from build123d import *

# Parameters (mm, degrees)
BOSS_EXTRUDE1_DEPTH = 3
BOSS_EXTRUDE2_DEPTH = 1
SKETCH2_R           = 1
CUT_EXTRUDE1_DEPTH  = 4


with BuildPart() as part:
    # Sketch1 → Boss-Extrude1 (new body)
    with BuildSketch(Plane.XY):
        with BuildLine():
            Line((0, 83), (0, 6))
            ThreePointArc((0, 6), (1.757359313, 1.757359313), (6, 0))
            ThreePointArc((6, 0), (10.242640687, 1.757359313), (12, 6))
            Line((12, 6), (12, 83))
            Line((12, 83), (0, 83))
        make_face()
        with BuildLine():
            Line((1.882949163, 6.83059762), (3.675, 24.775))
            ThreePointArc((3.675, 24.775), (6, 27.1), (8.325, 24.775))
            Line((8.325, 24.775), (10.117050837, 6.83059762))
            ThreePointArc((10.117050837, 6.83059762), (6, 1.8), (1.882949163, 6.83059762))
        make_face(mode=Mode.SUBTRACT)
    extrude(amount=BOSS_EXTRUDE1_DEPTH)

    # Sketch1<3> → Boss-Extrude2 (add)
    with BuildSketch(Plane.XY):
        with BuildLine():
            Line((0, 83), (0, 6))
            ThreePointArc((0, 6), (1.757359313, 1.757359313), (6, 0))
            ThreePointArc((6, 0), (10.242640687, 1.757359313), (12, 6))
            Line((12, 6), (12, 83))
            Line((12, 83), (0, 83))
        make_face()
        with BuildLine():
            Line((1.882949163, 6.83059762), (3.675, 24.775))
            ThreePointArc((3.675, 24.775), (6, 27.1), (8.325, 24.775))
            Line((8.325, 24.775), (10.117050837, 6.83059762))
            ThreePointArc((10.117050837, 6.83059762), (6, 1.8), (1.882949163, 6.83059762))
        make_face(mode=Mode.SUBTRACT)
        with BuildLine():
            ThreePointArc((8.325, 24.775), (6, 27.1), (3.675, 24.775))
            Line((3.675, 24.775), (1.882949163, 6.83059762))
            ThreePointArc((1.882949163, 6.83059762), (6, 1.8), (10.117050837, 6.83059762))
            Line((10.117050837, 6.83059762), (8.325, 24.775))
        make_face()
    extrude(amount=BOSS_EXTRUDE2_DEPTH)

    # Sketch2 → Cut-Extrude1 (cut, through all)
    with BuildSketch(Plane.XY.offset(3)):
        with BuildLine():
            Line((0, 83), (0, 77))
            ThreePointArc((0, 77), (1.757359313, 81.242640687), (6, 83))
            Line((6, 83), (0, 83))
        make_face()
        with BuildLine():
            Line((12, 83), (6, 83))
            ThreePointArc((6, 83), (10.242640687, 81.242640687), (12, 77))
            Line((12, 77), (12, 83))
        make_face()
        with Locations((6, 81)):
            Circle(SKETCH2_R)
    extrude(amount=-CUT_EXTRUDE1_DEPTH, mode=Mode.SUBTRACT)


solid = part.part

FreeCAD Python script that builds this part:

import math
import FreeCAD as App
import Part
import Sketcher

doc = App.newDocument("Part")
params = doc.addObject("Spreadsheet::Sheet", "Params")
for row, (alias, value) in enumerate([
    ("sketch1_radius", "6 mm"),
    ("sketch1_radius2", "4.2 mm"),
    ("sketch1_height", "77 mm"),
    ("pad1_length", "3 mm"),
    ("sketch2_radius", "6 mm"),
    ("sketch2_height", "77 mm"),
    ("pad2_length", "1 mm"),
    ("sketch3_diameter", "2 mm"),
    ("sketch3_radius", "6 mm"),
], start=1):
    params.set(f"A{row}", alias)
    params.set(f"B{row}", "=" + value)
    params.setAlias(f"B{row}", alias)

body = doc.addObject("PartDesign::Body", "Body")

# Sketch on XY plane
sketch1 = body.newObject("Sketcher::SketchObject", "Sketch")
sketch1.AttachmentSupport = (doc.getObject("XY_Plane"), [""])
sketch1.MapMode = "FlatFace"
sketch1.addGeometry([
    Part.LineSegment(App.Vector(0, 83, 0), App.Vector(0, 6, 0)),  # 0
    Part.ArcOfCircle(Part.Circle(App.Vector(6, 6, 0), App.Vector(0, 0, 1), 6), math.radians(180), math.radians(270)),  # 1
    Part.ArcOfCircle(Part.Circle(App.Vector(6, 6, 0), App.Vector(0, 0, 1), 6), math.radians(-90), math.radians(0)),  # 2
    Part.LineSegment(App.Vector(12, 6, 0), App.Vector(12, 83, 0)),  # 3
    Part.LineSegment(App.Vector(12, 83, 0), App.Vector(0, 83, 0)),  # 4
    Part.ArcOfCircle(Part.Circle(App.Vector(6, 6, 0), App.Vector(0, 0, 1), 4.2), math.radians(169), math.radians(371)),  # 5
    Part.LineSegment(App.Vector(1.9, 6.8, 0), App.Vector(3.7, 24.8, 0)),  # 6
    Part.ArcOfCircle(Part.Circle(App.Vector(6, 24.8, 0), App.Vector(0, 0, 1), 2.3), math.radians(0), math.radians(180)),  # 7
    Part.LineSegment(App.Vector(8.3, 24.8, 0), App.Vector(10.1, 6.8, 0)),  # 8
], False)
sketch1.addConstraint([
    Sketcher.Constraint("Tangent", 0, 2, 1, 1),
    Sketcher.Constraint("Tangent", 1, 2, 2, 1),
    Sketcher.Constraint("Tangent", 2, 2, 3, 1),
    Sketcher.Constraint("Coincident", 3, 2, 4, 1),
    Sketcher.Constraint("Coincident", 4, 2, 0, 1),
    Sketcher.Constraint("Coincident", 5, 1, 6, 1),
    Sketcher.Constraint("Coincident", 6, 2, 7, 2),
    Sketcher.Constraint("Coincident", 7, 1, 8, 1),
    Sketcher.Constraint("Coincident", 8, 2, 5, 2),
    Sketcher.Constraint("Vertical", 0),
    Sketcher.Constraint("Vertical", 3),
    Sketcher.Constraint("Horizontal", 4),
    Sketcher.Constraint("Coincident", 5, 3, 1, 3),
    Sketcher.Constraint("Equal", 1, 2),
    Sketcher.Constraint("PointOnObject", 0, 2, -2),
    Sketcher.Constraint("PointOnObject", 1, 2, -1),
    Sketcher.Constraint("Horizontal", 7, 3, 6, 2),
    Sketcher.Constraint("Horizontal", 6, 2, 7, 1),
    Sketcher.Constraint("Horizontal", 5, 1, 8, 2),
    Sketcher.Constraint("Vertical", 5, 3, 7, 3),
    Sketcher.Constraint("Vertical", 7, 3, 1, 2),
    Sketcher.Constraint("Radius", 1, 6.0),
    Sketcher.Constraint("Radius", 5, 4.2),
    Sketcher.Constraint("DistanceY", 0, 2, 0, 1, 77.0),
    Sketcher.Constraint("Radius", 7, 2.325),
    Sketcher.Constraint("DistanceY", -1, 1, 7, 3, 24.775),
    Sketcher.Constraint("DistanceX", -1, 1, 5, 1, 1.882949),
])
sketch1.setExpression("Constraints[21]", "Params.sketch1_radius")
sketch1.setExpression("Constraints[22]", "Params.sketch1_radius2")
sketch1.setExpression("Constraints[23]", "Params.sketch1_height")
pad1 = body.newObject("PartDesign::Pad", "Pad")
pad1.Profile = sketch1
pad1.setExpression("Length", "Params.pad1_length")

# Sketch on XY plane
sketch2 = body.newObject("Sketcher::SketchObject", "Sketch001")
sketch2.AttachmentSupport = (doc.getObject("XY_Plane"), [""])
sketch2.MapMode = "FlatFace"
sketch2.addGeometry([
    Part.LineSegment(App.Vector(0, 83, 0), App.Vector(0, 6, 0)),  # 0
    Part.ArcOfCircle(Part.Circle(App.Vector(6, 6, 0), App.Vector(0, 0, 1), 6), math.radians(180), math.radians(270)),  # 1
    Part.ArcOfCircle(Part.Circle(App.Vector(6, 6, 0), App.Vector(0, 0, 1), 6), math.radians(-90), math.radians(0)),  # 2
    Part.LineSegment(App.Vector(12, 6, 0), App.Vector(12, 83, 0)),  # 3
    Part.LineSegment(App.Vector(12, 83, 0), App.Vector(0, 83, 0)),  # 4
], False)
sketch2.addConstraint([
    Sketcher.Constraint("Tangent", 0, 2, 1, 1),
    Sketcher.Constraint("Tangent", 1, 2, 2, 1),
    Sketcher.Constraint("Tangent", 2, 2, 3, 1),
    Sketcher.Constraint("Coincident", 3, 2, 4, 1),
    Sketcher.Constraint("Coincident", 4, 2, 0, 1),
    Sketcher.Constraint("Vertical", 0),
    Sketcher.Constraint("Vertical", 3),
    Sketcher.Constraint("Horizontal", 4),
    Sketcher.Constraint("Equal", 1, 2),
    Sketcher.Constraint("PointOnObject", 0, 2, -2),
    Sketcher.Constraint("PointOnObject", 1, 2, -1),
    Sketcher.Constraint("Vertical", 2, 3, 1, 2),
    Sketcher.Constraint("Radius", 1, 6.0),
    Sketcher.Constraint("DistanceY", 0, 2, 0, 1, 77.0),
])
sketch2.setExpression("Constraints[12]", "Params.sketch2_radius")
sketch2.setExpression("Constraints[13]", "Params.sketch2_height")
pad2 = body.newObject("PartDesign::Pad", "Pad001")
pad2.Profile = sketch2
pad2.setExpression("Length", "Params.pad2_length")

# Sketch on XY plane
sketch3 = body.newObject("Sketcher::SketchObject", "Sketch002")
sketch3.AttachmentSupport = (doc.getObject("XY_Plane"), [""])
sketch3.MapMode = "FlatFace"
sketch3.AttachmentOffset = App.Placement(App.Vector(0, 0, 3), App.Rotation())
sketch3.addGeometry([
    Part.LineSegment(App.Vector(0, 83, 0), App.Vector(0, 77, 0)),  # 0
    Part.ArcOfCircle(Part.Circle(App.Vector(6, 77, 0), App.Vector(0, 0, 1), 6), math.radians(90), math.radians(180)),  # 1
    Part.LineSegment(App.Vector(6, 83, 0), App.Vector(0, 83, 0)),  # 2
    Part.LineSegment(App.Vector(12, 83, 0), App.Vector(6, 83, 0)),  # 3
    Part.ArcOfCircle(Part.Circle(App.Vector(6, 77, 0), App.Vector(0, 0, 1), 6), math.radians(0), math.radians(90)),  # 4
    Part.LineSegment(App.Vector(12, 77, 0), App.Vector(12, 83, 0)),  # 5
    Part.Circle(App.Vector(6, 81, 0), App.Vector(0, 0, 1), 1),  # 6
], False)
sketch3.addConstraint([
    Sketcher.Constraint("Tangent", 0, 2, 1, 2),
    Sketcher.Constraint("Tangent", 1, 1, 2, 1),
    Sketcher.Constraint("Coincident", 2, 2, 0, 1),
    Sketcher.Constraint("Tangent", 3, 2, 4, 2),
    Sketcher.Constraint("Tangent", 4, 1, 5, 1),
    Sketcher.Constraint("Coincident", 5, 2, 3, 1),
    Sketcher.Constraint("Vertical", 0),
    Sketcher.Constraint("Horizontal", 2),
    Sketcher.Constraint("Horizontal", 3),
    Sketcher.Constraint("Vertical", 5),
    Sketcher.Constraint("Coincident", 4, 3, 1, 3),
    Sketcher.Constraint("Equal", 1, 4),
    Sketcher.Constraint("PointOnObject", 0, 2, -2),
    Sketcher.Constraint("Vertical", 4, 3, 6, 3),
    Sketcher.Constraint("Diameter", 6, 2.0),
    Sketcher.Constraint("Radius", 1, 6.0),
    Sketcher.Constraint("DistanceY", -1, 1, 1, 3, 77.0),
    Sketcher.Constraint("DistanceY", -1, 1, 6, 3, 81.0),
])
sketch3.setExpression("Constraints[14]", "Params.sketch3_diameter")
sketch3.setExpression("Constraints[15]", "Params.sketch3_radius")
pocket1 = body.newObject("PartDesign::Pocket", "Pocket")
pocket1.Profile = sketch3
pocket1.Type = "ThroughAll"

doc.recompute()
